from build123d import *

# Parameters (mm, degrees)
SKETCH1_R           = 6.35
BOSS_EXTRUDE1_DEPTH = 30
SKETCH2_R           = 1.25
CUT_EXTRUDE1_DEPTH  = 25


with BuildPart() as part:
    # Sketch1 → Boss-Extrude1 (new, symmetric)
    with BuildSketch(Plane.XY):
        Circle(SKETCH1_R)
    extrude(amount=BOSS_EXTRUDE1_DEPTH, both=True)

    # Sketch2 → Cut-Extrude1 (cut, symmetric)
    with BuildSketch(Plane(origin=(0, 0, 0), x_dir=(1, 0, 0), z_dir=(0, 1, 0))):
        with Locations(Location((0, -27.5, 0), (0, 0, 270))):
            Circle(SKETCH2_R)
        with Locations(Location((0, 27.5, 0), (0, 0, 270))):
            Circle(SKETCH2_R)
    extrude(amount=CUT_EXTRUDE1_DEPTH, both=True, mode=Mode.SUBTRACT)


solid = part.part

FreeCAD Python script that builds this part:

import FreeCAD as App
import Part
import Sketcher

doc = App.newDocument("Part")
body = doc.addObject("PartDesign::Body", "Body")

sketch1 = body.newObject("Sketcher::SketchObject", "Sketch")
sketch1.AttachmentSupport = (doc.getObject("XY_Plane"), [""])
sketch1.MapMode = "FlatFace"
sketch1.addGeometry(Part.Circle(App.Vector(0, 0, 0), App.Vector(0, 0, 1), 6.35), False)
sketch1.addConstraint([
    Sketcher.Constraint("Coincident", 0, 3, -1, 1),
    Sketcher.Constraint("Diameter", 0, 12.7),
])
pad1 = body.newObject("PartDesign::Pad", "Pad")
pad1.Profile = sketch1
pad1.Length = 60
pad1.Midplane = True

sketch2 = body.newObject("Sketcher::SketchObject", "Sketch001")
sketch2.AttachmentSupport = (doc.getObject("XZ_Plane"), [""])
sketch2.MapMode = "FlatFace"
sketch2.addGeometry([
    Part.Circle(App.Vector(0, 27.5, 0), App.Vector(0, 0, 1), 1.25),
    Part.Circle(App.Vector(0, -27.5, 0), App.Vector(0, 0, 1), 1.25),
], False)
sketch2.addConstraint([
    Sketcher.Constraint("Equal", 0, 1),
    Sketcher.Constraint("Symmetric", 0, 3, 1, 3, -1, 1),
    Sketcher.Constraint("PointOnObject", 0, 3, -2),
    Sketcher.Constraint("Diameter", 0, 2.5),
    Sketcher.Constraint("DistanceY", 1, 3, 0, 3, 55.0),
])
pocket1 = body.newObject("PartDesign::Pocket", "Pocket")
pocket1.Profile = sketch2
pocket1.Length = 50
pocket1.Midplane = True

doc.recompute()
